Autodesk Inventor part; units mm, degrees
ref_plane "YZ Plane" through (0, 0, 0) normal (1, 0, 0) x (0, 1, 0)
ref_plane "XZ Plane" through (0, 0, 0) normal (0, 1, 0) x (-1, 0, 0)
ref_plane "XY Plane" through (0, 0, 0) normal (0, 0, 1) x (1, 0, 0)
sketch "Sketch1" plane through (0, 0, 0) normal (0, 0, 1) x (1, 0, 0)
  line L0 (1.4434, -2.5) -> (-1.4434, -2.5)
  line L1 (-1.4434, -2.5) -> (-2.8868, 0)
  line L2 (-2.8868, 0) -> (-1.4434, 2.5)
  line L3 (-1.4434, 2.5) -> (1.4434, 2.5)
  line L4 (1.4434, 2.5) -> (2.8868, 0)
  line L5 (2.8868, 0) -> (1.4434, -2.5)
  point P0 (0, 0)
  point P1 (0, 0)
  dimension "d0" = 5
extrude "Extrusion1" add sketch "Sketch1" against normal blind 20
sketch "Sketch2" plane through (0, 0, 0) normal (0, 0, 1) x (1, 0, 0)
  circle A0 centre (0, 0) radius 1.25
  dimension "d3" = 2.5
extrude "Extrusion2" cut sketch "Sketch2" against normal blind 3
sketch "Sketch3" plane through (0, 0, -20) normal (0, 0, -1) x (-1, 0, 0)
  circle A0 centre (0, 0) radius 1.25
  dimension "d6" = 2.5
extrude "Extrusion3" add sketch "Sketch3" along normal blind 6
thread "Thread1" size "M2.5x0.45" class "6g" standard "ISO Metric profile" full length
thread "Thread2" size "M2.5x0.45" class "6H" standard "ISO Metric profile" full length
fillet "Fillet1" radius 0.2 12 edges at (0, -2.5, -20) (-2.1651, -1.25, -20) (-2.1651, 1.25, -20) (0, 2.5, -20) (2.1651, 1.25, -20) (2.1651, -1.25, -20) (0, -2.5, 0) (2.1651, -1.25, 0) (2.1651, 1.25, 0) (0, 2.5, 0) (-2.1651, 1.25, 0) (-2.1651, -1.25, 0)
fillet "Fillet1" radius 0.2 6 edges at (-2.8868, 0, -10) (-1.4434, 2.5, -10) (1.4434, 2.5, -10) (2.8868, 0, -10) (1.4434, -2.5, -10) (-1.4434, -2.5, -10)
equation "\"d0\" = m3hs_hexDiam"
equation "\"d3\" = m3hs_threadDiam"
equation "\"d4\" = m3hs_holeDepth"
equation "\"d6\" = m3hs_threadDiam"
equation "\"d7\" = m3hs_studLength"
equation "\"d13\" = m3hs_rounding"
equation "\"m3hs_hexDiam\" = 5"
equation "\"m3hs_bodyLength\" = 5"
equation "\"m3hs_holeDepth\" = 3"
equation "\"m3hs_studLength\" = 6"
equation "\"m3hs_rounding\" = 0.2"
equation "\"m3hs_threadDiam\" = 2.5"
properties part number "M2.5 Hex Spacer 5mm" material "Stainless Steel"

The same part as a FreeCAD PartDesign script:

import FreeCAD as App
import Part
import Sketcher
Q = App.Units.Quantity


def edges_at(feature, points):
    """Names of the edges that pass closest to the given points."""
    edges = feature.Shape.Edges
    near = lambda p: min(range(len(edges)), key=lambda i: edges[i].distToShape(Part.Vertex(*p))[0])
    return sorted({f"Edge{near(p) + 1}" for p in points})

doc = App.newDocument("Part")
body = doc.addObject("PartDesign::Body", "Body")

# Sketch on XY plane
sketch1 = body.newObject("Sketcher::SketchObject", "Sketch")
sketch1.AttachmentSupport = (doc.getObject("XY_Plane"), [""])
sketch1.MapMode = "FlatFace"
sketch1.addGeometry([
    Part.LineSegment(App.Vector(-1.4, -2.5, 0), App.Vector(1.4, -2.5, 0)),  # 0
    Part.LineSegment(App.Vector(1.4, -2.5, 0), App.Vector(2.9, 0, 0)),  # 1
    Part.LineSegment(App.Vector(2.9, 0, 0), App.Vector(1.4, 2.5, 0)),  # 2
    Part.LineSegment(App.Vector(1.4, 2.5, 0), App.Vector(-1.4, 2.5, 0)),  # 3
    Part.LineSegment(App.Vector(-1.4, 2.5, 0), App.Vector(-2.9, 0, 0)),  # 4
    Part.LineSegment(App.Vector(-2.9, 0, 0), App.Vector(-1.4, -2.5, 0)),  # 5
], False)
sketch1.addConstraint([
    Sketcher.Constraint("Coincident", 0, 2, 1, 1),
    Sketcher.Constraint("Coincident", 1, 2, 2, 1),
    Sketcher.Constraint("Coincident", 2, 2, 3, 1),
    Sketcher.Constraint("Coincident", 3, 2, 4, 1),
    Sketcher.Constraint("Coincident", 4, 2, 5, 1),
    Sketcher.Constraint("Coincident", 5, 2, 0, 1),
    Sketcher.Constraint("Horizontal", 0),
    Sketcher.Constraint("Horizontal", 3),
    Sketcher.Constraint("Symmetric", 0, 2, 3, 2, -1, 1),
    Sketcher.Constraint("Symmetric", 1, 2, 4, 2, -1, 1),
    Sketcher.Constraint("PointOnObject", 1, 2, -1),
    Sketcher.Constraint("Parallel", 2, 5),
    Sketcher.Constraint("Vertical", 0, 2, 2, 2),
    Sketcher.Constraint("DistanceY", 0, 2, 2, 2, 5.0),
    Sketcher.Constraint("Angle", 1, Q("59.9996 deg")),
    Sketcher.Constraint("DistanceX", 0, 1, 0, 2, 2.8868),
])
pad1 = body.newObject("PartDesign::Pad", "Pad")
pad1.Profile = sketch1
pad1.Length = 20
pad1.Reversed = True

# Sketch on XY plane
sketch2 = body.newObject("Sketcher::SketchObject", "Sketch001")
sketch2.AttachmentSupport = (doc.getObject("XY_Plane"), [""])
sketch2.MapMode = "FlatFace"
sketch2.addGeometry(Part.Circle(App.Vector(0, 0, 0), App.Vector(0, 0, 1), 1.2), False)
sketch2.addConstraint([
    Sketcher.Constraint("Coincident", 0, 3, -1, 1),
    Sketcher.Constraint("Diameter", 0, 2.5),
])
pocket1 = body.newObject("PartDesign::Pocket", "Pocket")
pocket1.Profile = sketch2
pocket1.Length = 3

# Sketch on XY plane
sketch3 = body.newObject("Sketcher::SketchObject", "Sketch002")
sketch3.AttachmentSupport = (doc.getObject("XY_Plane"), [""])
sketch3.MapMode = "FlatFace"
sketch3.AttachmentOffset = App.Placement(App.Vector(0, 0, -20), App.Rotation())
sketch3.addGeometry(Part.Circle(App.Vector(0, 0, 0), App.Vector(0, 0, 1), 1.2), False)
sketch3.addConstraint([
    Sketcher.Constraint("Coincident", 0, 3, -1, 1),
    Sketcher.Constraint("Diameter", 0, 2.5),
])
pad2 = body.newObject("PartDesign::Pad", "Pad001")
pad2.Profile = sketch3
pad2.Length = 6
pad2.Reversed = True
doc.recompute()

fillet = body.newObject("PartDesign::Fillet", "Fillet")
fillet.Base = (pad2, edges_at(pad2, [
    (0, -2.5, -20),
    (-2.165, -1.25, -20),
    (-2.165, 1.25, -20),
    (0, 2.5, -20),
    (2.165, 1.25, -20),
    (2.165, -1.25, -20),
    (0, -2.5, 0),
    (2.165, -1.25, 0),
    (2.165, 1.25, 0),
    (0, 2.5, 0),
    (-2.165, 1.25, 0),
    (-2.165, -1.25, 0),
]))
fillet.Radius = 0.2
doc.recompute()

fillet2 = body.newObject("PartDesign::Fillet", "Fillet001")
fillet2.Base = (fillet, edges_at(fillet, [
    (-2.887, 0, -10),
    (-1.443, 2.5, -10),
    (1.443, 2.5, -10),
    (2.887, 0, -10),
    (1.443, -2.5, -10),
    (-1.443, -2.5, -10),
]))
fillet2.Radius = 0.2

doc.recompute()
